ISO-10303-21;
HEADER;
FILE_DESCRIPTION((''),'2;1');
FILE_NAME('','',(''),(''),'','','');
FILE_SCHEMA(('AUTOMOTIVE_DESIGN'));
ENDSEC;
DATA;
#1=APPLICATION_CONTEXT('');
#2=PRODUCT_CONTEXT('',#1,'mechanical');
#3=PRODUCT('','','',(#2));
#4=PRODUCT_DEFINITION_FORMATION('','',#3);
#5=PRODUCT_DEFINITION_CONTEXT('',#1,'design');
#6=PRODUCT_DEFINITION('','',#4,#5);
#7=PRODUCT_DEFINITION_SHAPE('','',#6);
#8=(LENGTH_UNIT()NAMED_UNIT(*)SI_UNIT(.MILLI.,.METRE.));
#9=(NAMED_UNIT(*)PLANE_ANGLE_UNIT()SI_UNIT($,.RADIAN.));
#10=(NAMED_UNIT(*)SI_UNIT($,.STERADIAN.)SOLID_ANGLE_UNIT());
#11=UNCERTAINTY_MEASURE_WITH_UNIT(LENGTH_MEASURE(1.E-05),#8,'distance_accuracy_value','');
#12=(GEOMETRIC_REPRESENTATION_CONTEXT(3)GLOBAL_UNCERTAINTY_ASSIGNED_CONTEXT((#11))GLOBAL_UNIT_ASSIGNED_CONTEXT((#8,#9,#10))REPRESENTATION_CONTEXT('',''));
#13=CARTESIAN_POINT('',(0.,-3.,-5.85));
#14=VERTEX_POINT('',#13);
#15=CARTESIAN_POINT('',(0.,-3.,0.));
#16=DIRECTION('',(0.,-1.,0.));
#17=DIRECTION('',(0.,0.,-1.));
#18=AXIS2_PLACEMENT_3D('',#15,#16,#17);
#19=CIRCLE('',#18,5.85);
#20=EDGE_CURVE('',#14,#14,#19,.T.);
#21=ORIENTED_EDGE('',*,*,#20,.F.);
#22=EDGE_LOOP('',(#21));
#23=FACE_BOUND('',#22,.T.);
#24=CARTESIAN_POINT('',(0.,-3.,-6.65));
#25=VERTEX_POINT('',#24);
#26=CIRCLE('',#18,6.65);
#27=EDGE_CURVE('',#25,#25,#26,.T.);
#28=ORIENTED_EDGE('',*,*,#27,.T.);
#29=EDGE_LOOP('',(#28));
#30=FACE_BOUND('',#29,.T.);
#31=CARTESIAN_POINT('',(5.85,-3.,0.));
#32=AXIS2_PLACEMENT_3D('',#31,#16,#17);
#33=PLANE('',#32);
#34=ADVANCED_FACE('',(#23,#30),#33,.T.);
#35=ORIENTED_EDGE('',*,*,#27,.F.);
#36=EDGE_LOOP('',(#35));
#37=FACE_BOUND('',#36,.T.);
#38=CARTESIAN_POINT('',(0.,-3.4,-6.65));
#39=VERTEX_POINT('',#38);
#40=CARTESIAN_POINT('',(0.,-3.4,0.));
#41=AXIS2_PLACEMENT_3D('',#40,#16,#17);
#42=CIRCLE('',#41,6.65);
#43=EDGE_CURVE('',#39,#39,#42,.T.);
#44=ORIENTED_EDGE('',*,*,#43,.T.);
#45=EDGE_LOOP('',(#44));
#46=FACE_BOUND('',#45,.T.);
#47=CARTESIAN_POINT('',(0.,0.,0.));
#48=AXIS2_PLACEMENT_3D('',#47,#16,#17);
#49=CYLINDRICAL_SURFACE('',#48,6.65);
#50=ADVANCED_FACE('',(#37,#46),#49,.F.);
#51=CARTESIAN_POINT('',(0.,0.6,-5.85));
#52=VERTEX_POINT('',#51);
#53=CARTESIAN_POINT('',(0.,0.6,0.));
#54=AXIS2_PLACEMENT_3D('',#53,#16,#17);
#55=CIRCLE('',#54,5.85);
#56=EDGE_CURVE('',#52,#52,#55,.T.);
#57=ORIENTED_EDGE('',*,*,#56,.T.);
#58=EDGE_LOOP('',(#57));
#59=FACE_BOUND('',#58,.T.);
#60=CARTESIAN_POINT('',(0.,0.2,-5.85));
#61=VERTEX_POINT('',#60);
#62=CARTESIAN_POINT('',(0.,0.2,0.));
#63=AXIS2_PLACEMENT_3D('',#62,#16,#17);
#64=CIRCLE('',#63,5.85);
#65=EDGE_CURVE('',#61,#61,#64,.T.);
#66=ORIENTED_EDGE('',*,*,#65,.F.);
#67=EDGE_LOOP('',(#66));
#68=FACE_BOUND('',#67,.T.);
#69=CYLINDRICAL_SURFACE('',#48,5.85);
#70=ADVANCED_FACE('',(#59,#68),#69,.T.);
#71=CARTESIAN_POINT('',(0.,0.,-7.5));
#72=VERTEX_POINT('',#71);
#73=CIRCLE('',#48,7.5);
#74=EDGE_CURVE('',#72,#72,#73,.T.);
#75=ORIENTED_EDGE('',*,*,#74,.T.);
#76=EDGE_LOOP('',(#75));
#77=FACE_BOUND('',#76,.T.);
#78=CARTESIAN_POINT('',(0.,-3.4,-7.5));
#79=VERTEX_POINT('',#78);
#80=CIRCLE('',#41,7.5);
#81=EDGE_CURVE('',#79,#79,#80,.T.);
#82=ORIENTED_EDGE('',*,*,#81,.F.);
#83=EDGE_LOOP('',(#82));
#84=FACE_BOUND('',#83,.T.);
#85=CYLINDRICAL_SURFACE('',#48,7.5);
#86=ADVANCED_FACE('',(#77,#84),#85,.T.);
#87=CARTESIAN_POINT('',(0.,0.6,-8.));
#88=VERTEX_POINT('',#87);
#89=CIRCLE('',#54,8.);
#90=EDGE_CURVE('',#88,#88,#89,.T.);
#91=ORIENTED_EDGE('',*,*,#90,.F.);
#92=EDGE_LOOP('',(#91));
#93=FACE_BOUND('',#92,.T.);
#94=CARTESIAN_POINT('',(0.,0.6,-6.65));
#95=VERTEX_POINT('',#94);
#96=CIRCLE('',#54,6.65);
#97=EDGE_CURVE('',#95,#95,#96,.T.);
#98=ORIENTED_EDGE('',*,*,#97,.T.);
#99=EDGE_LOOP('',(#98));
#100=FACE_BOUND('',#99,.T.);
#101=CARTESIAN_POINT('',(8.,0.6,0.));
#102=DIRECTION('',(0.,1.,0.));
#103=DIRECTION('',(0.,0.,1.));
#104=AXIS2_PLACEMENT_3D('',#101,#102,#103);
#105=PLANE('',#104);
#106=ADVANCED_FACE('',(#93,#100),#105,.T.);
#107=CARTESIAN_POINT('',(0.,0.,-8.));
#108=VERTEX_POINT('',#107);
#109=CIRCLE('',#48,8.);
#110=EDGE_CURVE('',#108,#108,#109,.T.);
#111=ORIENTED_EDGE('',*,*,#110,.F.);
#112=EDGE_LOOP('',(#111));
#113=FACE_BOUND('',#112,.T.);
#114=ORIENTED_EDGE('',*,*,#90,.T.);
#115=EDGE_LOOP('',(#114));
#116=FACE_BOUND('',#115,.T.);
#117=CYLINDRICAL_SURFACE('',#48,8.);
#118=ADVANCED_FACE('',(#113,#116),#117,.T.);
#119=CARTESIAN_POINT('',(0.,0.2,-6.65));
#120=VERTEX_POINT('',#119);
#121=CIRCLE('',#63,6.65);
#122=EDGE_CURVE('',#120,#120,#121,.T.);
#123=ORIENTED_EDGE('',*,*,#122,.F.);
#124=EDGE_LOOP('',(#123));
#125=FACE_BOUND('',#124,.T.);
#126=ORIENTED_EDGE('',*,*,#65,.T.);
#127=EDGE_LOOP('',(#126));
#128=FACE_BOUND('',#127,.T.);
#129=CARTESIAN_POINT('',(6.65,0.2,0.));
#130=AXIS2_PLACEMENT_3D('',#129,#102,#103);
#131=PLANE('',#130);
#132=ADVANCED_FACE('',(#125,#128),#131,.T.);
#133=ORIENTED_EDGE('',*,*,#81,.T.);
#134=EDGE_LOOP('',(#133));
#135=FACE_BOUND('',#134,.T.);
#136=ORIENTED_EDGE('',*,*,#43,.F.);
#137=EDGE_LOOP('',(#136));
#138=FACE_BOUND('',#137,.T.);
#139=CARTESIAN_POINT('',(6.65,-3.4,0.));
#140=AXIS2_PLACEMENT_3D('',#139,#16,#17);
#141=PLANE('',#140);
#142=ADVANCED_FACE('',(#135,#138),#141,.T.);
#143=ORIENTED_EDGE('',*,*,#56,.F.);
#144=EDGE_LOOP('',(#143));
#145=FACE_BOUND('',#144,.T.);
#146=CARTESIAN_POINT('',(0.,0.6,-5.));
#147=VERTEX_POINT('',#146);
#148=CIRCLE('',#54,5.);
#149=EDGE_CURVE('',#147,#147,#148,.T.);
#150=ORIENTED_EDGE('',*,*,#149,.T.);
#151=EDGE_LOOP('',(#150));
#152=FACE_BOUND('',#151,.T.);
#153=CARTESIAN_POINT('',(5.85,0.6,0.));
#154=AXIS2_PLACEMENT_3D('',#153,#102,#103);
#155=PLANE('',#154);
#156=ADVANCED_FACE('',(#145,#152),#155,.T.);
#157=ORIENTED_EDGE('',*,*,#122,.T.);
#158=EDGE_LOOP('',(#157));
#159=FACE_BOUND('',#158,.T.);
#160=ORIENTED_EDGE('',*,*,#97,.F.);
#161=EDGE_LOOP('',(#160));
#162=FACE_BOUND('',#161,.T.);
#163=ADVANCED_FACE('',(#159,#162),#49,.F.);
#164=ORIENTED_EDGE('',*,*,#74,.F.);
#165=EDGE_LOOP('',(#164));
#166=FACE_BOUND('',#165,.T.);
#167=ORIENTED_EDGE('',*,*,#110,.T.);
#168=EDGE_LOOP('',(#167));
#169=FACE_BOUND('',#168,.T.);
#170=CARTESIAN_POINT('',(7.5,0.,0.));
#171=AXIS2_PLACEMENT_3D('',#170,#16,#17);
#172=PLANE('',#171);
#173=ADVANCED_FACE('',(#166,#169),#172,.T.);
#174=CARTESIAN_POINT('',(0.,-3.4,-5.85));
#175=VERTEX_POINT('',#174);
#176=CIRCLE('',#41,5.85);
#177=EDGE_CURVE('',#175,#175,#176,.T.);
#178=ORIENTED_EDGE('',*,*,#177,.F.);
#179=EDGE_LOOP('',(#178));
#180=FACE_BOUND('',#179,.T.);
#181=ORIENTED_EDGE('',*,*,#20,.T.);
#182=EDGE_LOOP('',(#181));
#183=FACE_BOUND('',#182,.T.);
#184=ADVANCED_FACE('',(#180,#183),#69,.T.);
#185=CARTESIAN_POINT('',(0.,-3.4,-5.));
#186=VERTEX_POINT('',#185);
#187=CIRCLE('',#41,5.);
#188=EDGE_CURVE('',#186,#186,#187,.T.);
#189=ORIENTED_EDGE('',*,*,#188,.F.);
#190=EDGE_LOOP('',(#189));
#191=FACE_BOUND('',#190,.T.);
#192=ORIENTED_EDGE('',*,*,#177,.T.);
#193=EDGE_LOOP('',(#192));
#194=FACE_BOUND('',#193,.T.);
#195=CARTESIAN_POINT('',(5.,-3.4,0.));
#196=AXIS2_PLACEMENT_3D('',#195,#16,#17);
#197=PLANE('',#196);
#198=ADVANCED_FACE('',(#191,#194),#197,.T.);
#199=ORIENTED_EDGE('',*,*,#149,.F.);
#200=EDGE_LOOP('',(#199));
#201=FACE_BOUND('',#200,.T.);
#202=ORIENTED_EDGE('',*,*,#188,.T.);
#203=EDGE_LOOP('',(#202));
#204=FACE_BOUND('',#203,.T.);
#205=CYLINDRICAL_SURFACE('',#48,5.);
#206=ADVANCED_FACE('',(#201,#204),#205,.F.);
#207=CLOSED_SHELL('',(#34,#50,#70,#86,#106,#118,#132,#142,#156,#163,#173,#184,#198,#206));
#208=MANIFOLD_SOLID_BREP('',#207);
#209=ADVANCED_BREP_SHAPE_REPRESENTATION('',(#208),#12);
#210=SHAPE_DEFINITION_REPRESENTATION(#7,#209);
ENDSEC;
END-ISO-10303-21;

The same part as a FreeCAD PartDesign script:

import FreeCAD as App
import Part
import Sketcher
from FreeCAD import Vector


def add_polygon(sketch, points):
    """Adds a closed chain of lines whose ends are joined by coincident constraints."""
    first, n = sketch.GeometryCount, len(points)
    for a, b in zip(points, points[1:] + points[:1]):
        sketch.addGeometry(Part.LineSegment(App.Vector(*a, 0), App.Vector(*b, 0)), False)
    for i in range(n):
        sketch.addConstraint(Sketcher.Constraint("Coincident", first + i, 2, first + (i + 1) % n, 1))

doc = App.newDocument("Part")
body = doc.addObject("PartDesign::Body", "Body")

sketch1 = doc.addObject("Sketcher::SketchObject", "Sketch")
body.addObject(sketch1)
sketch1.AttachmentSupport = (doc.XY_Plane, [""])
sketch1.MapMode = "FlatFace"
add_polygon(sketch1, [(5, 0.6), (5, -3.4), (5.85, -3.4), (5.85, -3), (6.65, -3), (6.65, -3.4), (7.5, -3.4), (7.5, 0), (8, 0), (8, 0.6), (6.65, 0.6), (6.65, 0.2), (5.85, 0.2), (5.85, 0.6)])
sketch1.addConstraint([
    Sketcher.Constraint("Vertical", 0),
    Sketcher.Constraint("Horizontal", 1),
    Sketcher.Constraint("Vertical", 2),
    Sketcher.Constraint("Horizontal", 3),
    Sketcher.Constraint("Vertical", 4),
    Sketcher.Constraint("Horizontal", 5),
    Sketcher.Constraint("Vertical", 6),
    Sketcher.Constraint("Horizontal", 7),
    Sketcher.Constraint("Vertical", 8),
    Sketcher.Constraint("Horizontal", 9),
    Sketcher.Constraint("Vertical", 10),
    Sketcher.Constraint("Horizontal", 11),
    Sketcher.Constraint("Vertical", 12),
    Sketcher.Constraint("Horizontal", 13),
    Sketcher.Constraint("PointOnObject", 6, 2, -1),
    Sketcher.Constraint("Horizontal", 1, 2, 4, 2),
    Sketcher.Constraint("Horizontal", 9, 2, 12, 2),
    Sketcher.Constraint("Vertical", 4, 2, 9, 2),
    Sketcher.Constraint("Vertical", 2, 2, 11, 2),
    Sketcher.Constraint("Equal", 1, 5),
    Sketcher.Constraint("Equal", 4, 10),
    Sketcher.Constraint("DistanceY", 0, 2, 0, 1, 4.0),
    Sketcher.Constraint("DistanceX", 3, 1, 3, 2, 0.8),
    Sketcher.Constraint("DistanceX", 7, 1, 7, 2, 0.5),
    Sketcher.Constraint("DistanceY", 2, 1, 2, 2, 0.4),
    Sketcher.Constraint("DistanceY", 6, 1, 6, 2, 3.4),
    Sketcher.Constraint("DistanceX", -1, 1, 0, 2, 5.0),
    Sketcher.Constraint("DistanceX", -1, 1, 7, 2, 8.0),
])
revolution = doc.addObject("PartDesign::Revolution", "Revolution")
body.addObject(revolution)
revolution.Profile = sketch1
revolution.ReferenceAxis = (sketch1, ["V_Axis"])
revolution.Angle = 360

doc.recompute()
